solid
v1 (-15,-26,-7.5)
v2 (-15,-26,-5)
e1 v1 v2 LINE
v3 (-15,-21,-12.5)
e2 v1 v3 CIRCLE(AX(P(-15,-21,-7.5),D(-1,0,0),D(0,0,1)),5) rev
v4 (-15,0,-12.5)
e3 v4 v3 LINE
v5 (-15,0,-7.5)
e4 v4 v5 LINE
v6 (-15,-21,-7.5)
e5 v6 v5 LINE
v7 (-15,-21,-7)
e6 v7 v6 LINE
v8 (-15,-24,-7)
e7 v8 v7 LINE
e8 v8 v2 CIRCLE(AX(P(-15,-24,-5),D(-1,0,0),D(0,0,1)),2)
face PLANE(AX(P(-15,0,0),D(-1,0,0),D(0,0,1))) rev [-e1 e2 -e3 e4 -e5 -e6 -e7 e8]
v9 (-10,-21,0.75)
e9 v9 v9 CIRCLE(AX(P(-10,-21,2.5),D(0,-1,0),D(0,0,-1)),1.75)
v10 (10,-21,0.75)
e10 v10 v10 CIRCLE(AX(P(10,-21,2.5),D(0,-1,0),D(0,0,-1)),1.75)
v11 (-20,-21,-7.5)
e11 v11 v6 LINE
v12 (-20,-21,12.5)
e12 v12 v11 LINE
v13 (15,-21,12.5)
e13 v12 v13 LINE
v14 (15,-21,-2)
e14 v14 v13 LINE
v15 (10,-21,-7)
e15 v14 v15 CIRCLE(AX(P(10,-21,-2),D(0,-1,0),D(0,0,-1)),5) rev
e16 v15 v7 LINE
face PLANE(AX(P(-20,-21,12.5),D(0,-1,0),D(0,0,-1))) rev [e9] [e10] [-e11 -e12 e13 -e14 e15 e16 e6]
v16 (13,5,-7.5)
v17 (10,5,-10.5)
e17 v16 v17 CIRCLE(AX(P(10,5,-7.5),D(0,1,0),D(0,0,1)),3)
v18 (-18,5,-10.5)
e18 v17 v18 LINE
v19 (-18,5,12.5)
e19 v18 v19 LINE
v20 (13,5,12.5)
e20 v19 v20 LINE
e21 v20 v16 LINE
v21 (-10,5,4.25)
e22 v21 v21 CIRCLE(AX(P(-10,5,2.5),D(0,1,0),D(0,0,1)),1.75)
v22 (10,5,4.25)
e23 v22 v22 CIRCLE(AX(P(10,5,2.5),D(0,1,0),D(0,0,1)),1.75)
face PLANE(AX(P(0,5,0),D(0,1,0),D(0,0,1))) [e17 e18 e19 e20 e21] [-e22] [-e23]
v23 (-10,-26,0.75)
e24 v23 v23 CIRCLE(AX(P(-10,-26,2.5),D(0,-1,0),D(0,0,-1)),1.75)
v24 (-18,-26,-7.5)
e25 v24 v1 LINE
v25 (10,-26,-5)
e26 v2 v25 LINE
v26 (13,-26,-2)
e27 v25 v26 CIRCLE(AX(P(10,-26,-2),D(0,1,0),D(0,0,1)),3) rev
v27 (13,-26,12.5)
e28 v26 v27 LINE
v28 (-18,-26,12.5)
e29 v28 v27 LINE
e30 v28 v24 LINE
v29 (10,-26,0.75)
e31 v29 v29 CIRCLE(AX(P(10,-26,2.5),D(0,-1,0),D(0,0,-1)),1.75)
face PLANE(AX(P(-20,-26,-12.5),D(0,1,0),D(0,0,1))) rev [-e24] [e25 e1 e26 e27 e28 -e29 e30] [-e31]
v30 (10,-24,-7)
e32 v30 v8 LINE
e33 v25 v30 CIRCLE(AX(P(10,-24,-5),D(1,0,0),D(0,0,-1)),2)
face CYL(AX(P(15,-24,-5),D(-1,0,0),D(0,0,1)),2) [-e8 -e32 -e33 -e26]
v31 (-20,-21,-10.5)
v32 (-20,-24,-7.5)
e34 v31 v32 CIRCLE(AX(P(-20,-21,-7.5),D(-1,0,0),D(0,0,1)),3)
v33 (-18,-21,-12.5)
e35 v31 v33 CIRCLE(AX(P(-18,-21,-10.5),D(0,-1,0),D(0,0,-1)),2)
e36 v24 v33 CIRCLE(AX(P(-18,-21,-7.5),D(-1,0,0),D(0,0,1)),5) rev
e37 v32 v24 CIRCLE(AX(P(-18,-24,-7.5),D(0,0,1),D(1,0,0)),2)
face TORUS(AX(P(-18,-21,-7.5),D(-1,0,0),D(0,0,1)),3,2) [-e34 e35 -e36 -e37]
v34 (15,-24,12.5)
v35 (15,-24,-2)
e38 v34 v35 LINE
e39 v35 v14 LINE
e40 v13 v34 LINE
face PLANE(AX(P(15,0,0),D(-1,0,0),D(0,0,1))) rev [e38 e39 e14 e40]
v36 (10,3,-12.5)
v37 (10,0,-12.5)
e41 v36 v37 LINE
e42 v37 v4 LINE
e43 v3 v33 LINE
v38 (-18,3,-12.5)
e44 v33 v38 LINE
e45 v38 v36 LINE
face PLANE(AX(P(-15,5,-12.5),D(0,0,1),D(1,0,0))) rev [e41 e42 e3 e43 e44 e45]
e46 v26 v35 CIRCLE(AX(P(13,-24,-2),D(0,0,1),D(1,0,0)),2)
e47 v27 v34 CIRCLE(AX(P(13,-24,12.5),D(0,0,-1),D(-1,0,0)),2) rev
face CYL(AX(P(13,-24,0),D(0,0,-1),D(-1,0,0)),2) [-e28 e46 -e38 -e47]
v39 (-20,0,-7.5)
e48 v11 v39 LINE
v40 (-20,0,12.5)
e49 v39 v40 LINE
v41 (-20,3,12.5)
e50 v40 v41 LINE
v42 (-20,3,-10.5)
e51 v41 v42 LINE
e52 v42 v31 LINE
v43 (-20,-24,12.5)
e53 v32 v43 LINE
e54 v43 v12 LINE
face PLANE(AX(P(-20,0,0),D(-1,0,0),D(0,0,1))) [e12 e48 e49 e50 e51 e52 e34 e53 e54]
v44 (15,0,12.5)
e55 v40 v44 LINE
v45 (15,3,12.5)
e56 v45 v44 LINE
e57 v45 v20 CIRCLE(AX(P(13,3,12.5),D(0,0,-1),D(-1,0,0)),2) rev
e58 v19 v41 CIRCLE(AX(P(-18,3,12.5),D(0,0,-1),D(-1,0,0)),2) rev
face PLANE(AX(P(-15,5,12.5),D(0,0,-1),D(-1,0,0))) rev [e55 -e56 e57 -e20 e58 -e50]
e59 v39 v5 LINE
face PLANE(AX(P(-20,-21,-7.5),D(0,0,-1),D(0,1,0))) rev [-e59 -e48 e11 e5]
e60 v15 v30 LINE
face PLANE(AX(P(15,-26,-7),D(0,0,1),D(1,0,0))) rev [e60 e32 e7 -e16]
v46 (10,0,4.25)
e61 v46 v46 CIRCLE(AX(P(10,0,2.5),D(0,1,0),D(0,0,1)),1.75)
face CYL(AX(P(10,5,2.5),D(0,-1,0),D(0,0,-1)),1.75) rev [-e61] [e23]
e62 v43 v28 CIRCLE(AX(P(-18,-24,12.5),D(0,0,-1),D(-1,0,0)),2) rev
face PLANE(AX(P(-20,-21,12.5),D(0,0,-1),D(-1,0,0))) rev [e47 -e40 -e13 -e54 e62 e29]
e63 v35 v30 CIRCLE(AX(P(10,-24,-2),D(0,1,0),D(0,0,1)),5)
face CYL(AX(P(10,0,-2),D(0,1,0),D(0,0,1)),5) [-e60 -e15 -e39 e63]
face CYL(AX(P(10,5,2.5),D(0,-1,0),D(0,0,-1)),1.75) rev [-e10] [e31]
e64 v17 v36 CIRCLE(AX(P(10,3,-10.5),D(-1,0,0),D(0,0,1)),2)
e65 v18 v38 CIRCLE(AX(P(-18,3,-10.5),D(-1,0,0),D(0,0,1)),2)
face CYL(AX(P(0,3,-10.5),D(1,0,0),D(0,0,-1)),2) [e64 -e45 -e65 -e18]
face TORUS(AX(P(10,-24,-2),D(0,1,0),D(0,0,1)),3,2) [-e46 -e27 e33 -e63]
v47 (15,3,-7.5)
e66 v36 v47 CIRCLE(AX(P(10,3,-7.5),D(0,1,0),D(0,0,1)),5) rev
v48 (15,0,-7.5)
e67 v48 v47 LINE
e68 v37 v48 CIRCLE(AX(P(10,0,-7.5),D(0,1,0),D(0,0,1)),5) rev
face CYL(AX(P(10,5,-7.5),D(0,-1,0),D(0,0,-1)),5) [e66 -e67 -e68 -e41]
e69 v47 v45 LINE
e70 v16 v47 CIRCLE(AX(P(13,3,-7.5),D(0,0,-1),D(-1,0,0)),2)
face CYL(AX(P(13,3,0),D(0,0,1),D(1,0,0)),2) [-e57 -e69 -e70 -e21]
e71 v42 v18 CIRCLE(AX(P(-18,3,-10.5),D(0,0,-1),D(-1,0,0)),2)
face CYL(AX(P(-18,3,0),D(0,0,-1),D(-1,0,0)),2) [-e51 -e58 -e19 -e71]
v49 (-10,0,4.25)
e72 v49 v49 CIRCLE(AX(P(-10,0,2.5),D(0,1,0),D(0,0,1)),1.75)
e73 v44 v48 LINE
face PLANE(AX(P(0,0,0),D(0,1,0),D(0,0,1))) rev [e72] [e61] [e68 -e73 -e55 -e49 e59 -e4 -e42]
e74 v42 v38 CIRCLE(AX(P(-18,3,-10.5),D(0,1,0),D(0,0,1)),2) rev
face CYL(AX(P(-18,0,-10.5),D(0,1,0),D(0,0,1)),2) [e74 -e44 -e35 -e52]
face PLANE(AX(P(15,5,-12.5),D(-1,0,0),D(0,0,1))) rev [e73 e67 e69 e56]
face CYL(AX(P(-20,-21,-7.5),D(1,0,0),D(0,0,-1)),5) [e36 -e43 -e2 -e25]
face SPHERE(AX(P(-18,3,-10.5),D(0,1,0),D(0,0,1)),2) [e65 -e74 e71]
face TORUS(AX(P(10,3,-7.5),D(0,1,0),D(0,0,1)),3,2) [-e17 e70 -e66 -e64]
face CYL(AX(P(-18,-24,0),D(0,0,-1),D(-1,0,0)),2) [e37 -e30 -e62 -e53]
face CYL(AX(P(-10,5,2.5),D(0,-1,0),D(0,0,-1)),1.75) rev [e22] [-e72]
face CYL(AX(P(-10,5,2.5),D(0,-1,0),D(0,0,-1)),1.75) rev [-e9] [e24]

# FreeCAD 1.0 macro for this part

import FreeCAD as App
import Part
import Sketcher


def edges_at(feature, points):
    """Names of the edges that pass closest to the given points."""
    edges = feature.Shape.Edges
    near = lambda p: min(range(len(edges)), key=lambda i: edges[i].distToShape(Part.Vertex(*p))[0])
    return sorted({f"Edge{near(p) + 1}" for p in points})


def add_polygon(sketch, points):
    """Adds a closed chain of lines whose ends are joined by coincident constraints."""
    first, n = sketch.GeometryCount, len(points)
    for a, b in zip(points, points[1:] + points[:1]):
        sketch.addGeometry(Part.LineSegment(App.Vector(*a, 0), App.Vector(*b, 0)), False)
    for i in range(n):
        sketch.addConstraint(Sketcher.Constraint("Coincident", first + i, 2, first + (i + 1) % n, 1))

doc = App.newDocument("Part")
body = doc.addObject("PartDesign::Body", "Body")

# Sketch on XZ plane
sketch1 = body.newObject("Sketcher::SketchObject", "Sketch")
sketch1.AttachmentSupport = (doc.getObject("XZ_Plane"), [""])
sketch1.MapMode = "FlatFace"
add_polygon(sketch1, [(-15, -12.5), (-15, 12.5), (15, 12.5), (15, -12.5)])  # lines 0-3
sketch1.addGeometry(Part.Circle(App.Vector(-10, 2.5, 0), App.Vector(0, 0, 1), 1.75), False)  # 4
sketch1.addGeometry(Part.Circle(App.Vector(10, 2.5, 0), App.Vector(0, 0, 1), 1.75), False)  # 5
sketch1.addConstraint([
    Sketcher.Constraint("Vertical", 0),
    Sketcher.Constraint("Horizontal", 1),
    Sketcher.Constraint("Vertical", 2),
    Sketcher.Constraint("Horizontal", 3),
    Sketcher.Constraint("Equal", 4, 5),
    Sketcher.Constraint("Symmetric", 0, 2, 2, 2, -1, 1),
    Sketcher.Constraint("Symmetric", 4, 3, 5, 3, -2),
    Sketcher.Constraint("Diameter", 4, 3.5),
    Sketcher.Constraint("DistanceX", 1, 1, 1, 2, 30.0),
    Sketcher.Constraint("DistanceY", 0, 1, 0, 2, 25.0),
    Sketcher.Constraint("DistanceX", 4, 3, -1, 1, 10.0),
    Sketcher.Constraint("DistanceY", 4, 3, 0, 2, 10.0),
])
pad1 = body.newObject("PartDesign::Pad", "Pad")
pad1.Profile = sketch1
pad1.Length = 5
pad1.Reversed = True

# Sketch on YZ plane
sketch2 = body.newObject("Sketcher::SketchObject", "Sketch001")
sketch2.AttachmentSupport = (doc.getObject("YZ_Plane"), [""])
sketch2.MapMode = "FlatFace"
sketch2.AttachmentOffset = App.Placement(App.Vector(0, 0, -15), App.Rotation())
add_polygon(sketch2, [(5, 12.5), (5, -12.5), (-26, -12.5), (-26, 12.5), (-21, 12.5), (-21, -7.5), (0, -7.5), (0, 12.5)])  # lines 0-7
sketch2.addConstraint([
    Sketcher.Constraint("Vertical", 0),
    Sketcher.Constraint("Horizontal", 1),
    Sketcher.Constraint("Vertical", 2),
    Sketcher.Constraint("Horizontal", 3),
    Sketcher.Constraint("Vertical", 4),
    Sketcher.Constraint("Horizontal", 5),
    Sketcher.Constraint("Vertical", 6),
    Sketcher.Constraint("Horizontal", 7),
    Sketcher.Constraint("PointOnObject", 5, 2, -2),
    Sketcher.Constraint("Horizontal", 3, 2, 6, 2),
    Sketcher.Constraint("Equal", 3, 7),
    Sketcher.Constraint("DistanceX", 1, 2, 1, 1, 31.0),
    Sketcher.Constraint("DistanceX", 3, 1, 3, 2, 5.0),
    Sketcher.Constraint("DistanceY", 0, 2, 0, 1, 25.0),
    Sketcher.Constraint("DistanceY", 4, 2, 4, 1, 20.0),
    Sketcher.Constraint("DistanceY", 0, 2, -1, 1, 12.5),
])
pad2 = body.newObject("PartDesign::Pad", "Pad001")
pad2.Profile = sketch2
pad2.Length = 5
pad2.Reversed = True

# Sketch on YZ plane
sketch3 = body.newObject("Sketcher::SketchObject", "Sketch002")
sketch3.AttachmentSupport = (doc.getObject("YZ_Plane"), [""])
sketch3.MapMode = "FlatFace"
sketch3.AttachmentOffset = App.Placement(App.Vector(0, 0, -15), App.Rotation())
add_polygon(sketch3, [(-21, 12.5), (-26, 12.5), (-26, -7), (-21, -7)])  # lines 0-3
sketch3.addConstraint([
    Sketcher.Constraint("Horizontal", 0),
    Sketcher.Constraint("Vertical", 1),
    Sketcher.Constraint("Horizontal", 2),
    Sketcher.Constraint("Vertical", 3),
    Sketcher.Constraint("DistanceX", 0, 2, 0, 1, 5.0),
    Sketcher.Constraint("DistanceY", 1, 2, 1, 1, 19.5),
    Sketcher.Constraint("DistanceX", 0, 2, -1, 1, 26.0),
    Sketcher.Constraint("DistanceY", 1, 2, -1, 1, 7.0),
])
pad3 = body.newObject("PartDesign::Pad", "Pad002")
pad3.Profile = sketch3
pad3.Length = 30

# Sketch on XZ plane
sketch4 = body.newObject("Sketcher::SketchObject", "Sketch003")
sketch4.AttachmentSupport = (doc.getObject("XZ_Plane"), [""])
sketch4.MapMode = "FlatFace"
sketch4.AttachmentOffset = App.Placement(App.Vector(0, 0, 26), App.Rotation())
sketch4.addGeometry([
    Part.Circle(App.Vector(-10, 2.5, 0), App.Vector(0, 0, 1), 1.75),
    Part.Circle(App.Vector(10, 2.5, 0), App.Vector(0, 0, 1), 1.75),
], False)
sketch4.addConstraint([
    Sketcher.Constraint("Equal", 0, 1),
    Sketcher.Constraint("Symmetric", 0, 3, 1, 3, -2),
    Sketcher.Constraint("Diameter", 0, 3.5),
    Sketcher.Constraint("DistanceX", 0, 3, -1, 1, 10.0),
    Sketcher.Constraint("DistanceY", -1, 1, 0, 3, 2.5),
])
pocket1 = body.newObject("PartDesign::Pocket", "Pocket")
pocket1.Profile = sketch4
pocket1.Type = "ThroughAll"
doc.recompute()

fillet = body.newObject("PartDesign::Fillet", "Fillet")
fillet.Base = (pocket1, edges_at(pocket1, [(-17.5, -26, -12.5), (15, -23.5, -7), (15, 2.5, -12.5)]))
fillet.Radius = 5
doc.recompute()

fillet2 = body.newObject("PartDesign::Fillet", "Fillet001")
fillet2.Base = (fillet, edges_at(fillet, [
    (-20, -8, -12.5),
    (-20, 5, 0),
    (15, -26, 5.25),
    (15, 5, 2.5),
    (-2.5, -26, -7),
    (-20, -26, 2.5),
    (13.536, -26, -5.536),
    (-5, 5, -12.5),
    (-20, -24.536, -11.036),
    (13.536, 5, -11.036),
]))
fillet2.Radius = 2

doc.recompute()
